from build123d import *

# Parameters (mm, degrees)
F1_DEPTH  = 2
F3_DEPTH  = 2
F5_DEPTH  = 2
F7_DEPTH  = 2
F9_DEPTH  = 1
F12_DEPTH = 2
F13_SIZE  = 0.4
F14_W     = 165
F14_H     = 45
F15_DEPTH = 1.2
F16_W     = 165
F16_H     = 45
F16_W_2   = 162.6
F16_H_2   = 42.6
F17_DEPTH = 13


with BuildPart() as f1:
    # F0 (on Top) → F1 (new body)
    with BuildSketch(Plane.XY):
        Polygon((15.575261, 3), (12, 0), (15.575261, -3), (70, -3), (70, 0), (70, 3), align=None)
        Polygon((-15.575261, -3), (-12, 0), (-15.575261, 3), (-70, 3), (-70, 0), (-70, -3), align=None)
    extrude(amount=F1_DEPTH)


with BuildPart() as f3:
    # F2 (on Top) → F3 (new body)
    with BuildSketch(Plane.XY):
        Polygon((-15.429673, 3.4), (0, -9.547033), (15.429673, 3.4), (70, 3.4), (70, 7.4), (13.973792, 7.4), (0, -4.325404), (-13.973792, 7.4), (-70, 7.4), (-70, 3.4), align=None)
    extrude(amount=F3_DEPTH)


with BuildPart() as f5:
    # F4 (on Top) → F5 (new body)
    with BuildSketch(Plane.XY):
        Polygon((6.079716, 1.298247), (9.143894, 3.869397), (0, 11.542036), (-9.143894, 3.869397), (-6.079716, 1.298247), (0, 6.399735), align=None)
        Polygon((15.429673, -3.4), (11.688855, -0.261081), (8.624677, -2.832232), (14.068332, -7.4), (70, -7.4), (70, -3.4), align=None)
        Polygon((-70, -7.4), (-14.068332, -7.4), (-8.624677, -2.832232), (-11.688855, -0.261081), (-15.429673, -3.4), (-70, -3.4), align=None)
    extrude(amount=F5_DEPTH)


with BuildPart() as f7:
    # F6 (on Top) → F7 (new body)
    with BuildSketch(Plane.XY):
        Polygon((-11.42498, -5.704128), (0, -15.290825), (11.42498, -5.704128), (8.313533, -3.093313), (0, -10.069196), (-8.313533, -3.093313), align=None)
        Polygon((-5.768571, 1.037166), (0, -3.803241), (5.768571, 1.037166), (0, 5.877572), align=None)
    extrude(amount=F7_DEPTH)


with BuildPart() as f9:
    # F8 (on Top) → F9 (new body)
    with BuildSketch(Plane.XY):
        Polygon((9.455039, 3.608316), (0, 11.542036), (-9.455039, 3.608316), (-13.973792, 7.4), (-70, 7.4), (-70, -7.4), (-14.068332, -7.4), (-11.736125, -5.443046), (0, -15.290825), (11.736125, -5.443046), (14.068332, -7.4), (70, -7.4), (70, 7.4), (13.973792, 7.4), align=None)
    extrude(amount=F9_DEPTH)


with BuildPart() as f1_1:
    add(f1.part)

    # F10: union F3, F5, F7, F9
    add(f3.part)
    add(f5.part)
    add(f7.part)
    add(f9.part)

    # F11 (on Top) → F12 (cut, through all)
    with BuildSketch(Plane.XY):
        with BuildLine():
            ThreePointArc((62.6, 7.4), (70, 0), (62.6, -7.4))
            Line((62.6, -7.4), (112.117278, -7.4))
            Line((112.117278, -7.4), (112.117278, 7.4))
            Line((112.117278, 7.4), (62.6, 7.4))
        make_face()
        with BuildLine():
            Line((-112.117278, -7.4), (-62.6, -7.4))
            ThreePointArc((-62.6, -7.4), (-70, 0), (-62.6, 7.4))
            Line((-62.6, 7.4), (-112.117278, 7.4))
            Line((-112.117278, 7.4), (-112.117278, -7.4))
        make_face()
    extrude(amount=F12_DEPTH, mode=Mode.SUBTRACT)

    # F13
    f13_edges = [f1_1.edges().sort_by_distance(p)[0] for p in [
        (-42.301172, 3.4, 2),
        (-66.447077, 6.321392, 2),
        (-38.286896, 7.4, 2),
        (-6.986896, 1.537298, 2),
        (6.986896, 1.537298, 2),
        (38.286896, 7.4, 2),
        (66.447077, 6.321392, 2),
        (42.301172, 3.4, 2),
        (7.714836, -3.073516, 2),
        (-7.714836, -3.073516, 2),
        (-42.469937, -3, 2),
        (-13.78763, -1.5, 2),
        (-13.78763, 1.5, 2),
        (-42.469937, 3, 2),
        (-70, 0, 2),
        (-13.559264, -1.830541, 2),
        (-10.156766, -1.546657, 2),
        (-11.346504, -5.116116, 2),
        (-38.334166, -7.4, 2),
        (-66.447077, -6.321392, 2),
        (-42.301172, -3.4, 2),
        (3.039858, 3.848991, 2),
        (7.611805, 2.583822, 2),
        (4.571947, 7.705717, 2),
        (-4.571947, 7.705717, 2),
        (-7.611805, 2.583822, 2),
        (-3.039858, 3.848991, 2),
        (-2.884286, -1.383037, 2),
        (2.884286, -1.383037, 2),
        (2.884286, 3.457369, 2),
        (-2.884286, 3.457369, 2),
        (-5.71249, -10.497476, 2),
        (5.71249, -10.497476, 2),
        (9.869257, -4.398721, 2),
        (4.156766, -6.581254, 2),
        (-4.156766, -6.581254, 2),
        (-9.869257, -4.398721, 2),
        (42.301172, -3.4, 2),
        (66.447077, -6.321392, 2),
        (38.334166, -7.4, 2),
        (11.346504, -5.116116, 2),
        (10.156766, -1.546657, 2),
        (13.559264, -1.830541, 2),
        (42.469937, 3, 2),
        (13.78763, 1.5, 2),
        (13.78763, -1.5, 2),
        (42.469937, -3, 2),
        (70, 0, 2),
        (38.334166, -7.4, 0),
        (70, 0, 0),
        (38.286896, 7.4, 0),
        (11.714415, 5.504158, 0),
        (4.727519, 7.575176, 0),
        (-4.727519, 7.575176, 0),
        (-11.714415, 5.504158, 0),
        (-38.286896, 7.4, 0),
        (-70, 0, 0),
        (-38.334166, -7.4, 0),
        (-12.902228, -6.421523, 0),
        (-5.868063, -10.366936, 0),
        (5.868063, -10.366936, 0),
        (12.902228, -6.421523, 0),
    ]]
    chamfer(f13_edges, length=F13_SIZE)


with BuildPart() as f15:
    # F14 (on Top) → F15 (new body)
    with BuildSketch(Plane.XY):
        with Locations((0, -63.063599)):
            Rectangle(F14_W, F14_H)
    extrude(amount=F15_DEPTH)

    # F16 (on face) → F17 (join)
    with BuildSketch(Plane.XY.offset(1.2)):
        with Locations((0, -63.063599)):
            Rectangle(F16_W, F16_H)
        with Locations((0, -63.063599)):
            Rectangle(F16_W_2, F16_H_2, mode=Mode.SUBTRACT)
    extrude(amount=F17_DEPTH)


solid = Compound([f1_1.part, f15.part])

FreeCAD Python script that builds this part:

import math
import FreeCAD as App
import Part
import Sketcher

V = App.Vector
Q = App.Units.Quantity


def edges_at(feature, points):
    """Names of the edges that pass closest to the given points."""
    edges = feature.Shape.Edges
    near = lambda p: min(range(len(edges)), key=lambda i: edges[i].distToShape(Part.Vertex(*p))[0])
    return sorted({f"Edge{near(p) + 1}" for p in points})


def add_polygon(sketch, points):
    """Adds a closed chain of lines whose ends are joined by coincident constraints."""
    first, n = sketch.GeometryCount, len(points)
    for a, b in zip(points, points[1:] + points[:1]):
        sketch.addGeometry(Part.LineSegment(App.Vector(*a, 0), App.Vector(*b, 0)), False)
    for i in range(n):
        sketch.addConstraint(Sketcher.Constraint("Coincident", first + i, 2, first + (i + 1) % n, 1))

doc = App.newDocument("Part")
body = doc.addObject("PartDesign::Body", "Body")
body.AllowCompound = True

# Sketch on XY plane
sketch1 = body.newObject("Sketcher::SketchObject", "Sketch")
sketch1.AttachmentSupport = (doc.getObject("XY_Plane"), [""])
sketch1.MapMode = "FlatFace"
add_polygon(sketch1, [(15.6, 3), (12, 0), (15.6, -3), (70, -3), (70, 3)])  # lines 0-4
add_polygon(sketch1, [(-15.6, -3), (-12, 0), (-15.6, 3), (-70, 3), (-70, -3)])  # lines 5-9
sketch1.addConstraint([
    Sketcher.Constraint("Horizontal", 2),
    Sketcher.Constraint("Vertical", 3),
    Sketcher.Constraint("Horizontal", 4),
    Sketcher.Constraint("Horizontal", 7),
    Sketcher.Constraint("Vertical", 8),
    Sketcher.Constraint("Horizontal", 9),
    Sketcher.Constraint("Symmetric", 0, 2, 5, 2, -1, 1),
    Sketcher.Constraint("Symmetric", 1, 2, 6, 2, -1, 1),
    Sketcher.Constraint("Symmetric", 3, 2, 8, 2, -1, 1),
    Sketcher.Constraint("Symmetric", 4, 2, 6, 2, -2),
    Sketcher.Constraint("PointOnObject", 0, 2, -1),
    Sketcher.Constraint("Parallel", 0, 5),
    Sketcher.Constraint("DistanceY", 3, 1, 3, 2, Q("6 mm")),
    Sketcher.Constraint("Angle", 0, Q("-140.000002 deg")),
    Sketcher.Constraint("DistanceX", -1, 1, 0, 2, Q("12 mm")),
    Sketcher.Constraint("DistanceX", -1, 1, 2, 2, Q("70 mm")),
])
pad1 = body.newObject("PartDesign::Pad", "Pad")
pad1.Profile = sketch1
pad1.Length = 2
body2 = doc.addObject("PartDesign::Body", "Body001")

# Sketch on XY plane
sketch2 = body2.newObject("Sketcher::SketchObject", "Sketch001")
sketch2.AttachmentSupport = (doc.getObject("XY_Plane001"), [""])
sketch2.MapMode = "FlatFace"
add_polygon(sketch2, [(-15.4, 3.4), (0, -9.5), (15.4, 3.4), (70, 3.4), (70, 7.4), (14, 7.4), (0, -4.3), (-14, 7.4), (-70, 7.4), (-70, 3.4)])  # lines 0-9
sketch2.addConstraint([
    Sketcher.Constraint("Horizontal", 2),
    Sketcher.Constraint("Vertical", 3),
    Sketcher.Constraint("Horizontal", 4),
    Sketcher.Constraint("Horizontal", 7),
    Sketcher.Constraint("Vertical", 8),
    Sketcher.Constraint("Horizontal", 9),
    Sketcher.Constraint("Symmetric", 4, 2, 6, 2, -2),
    Sketcher.Constraint("Symmetric", 2, 2, 8, 2, -2),
    Sketcher.Constraint("PointOnObject", 0, 2, -2),
    Sketcher.Constraint("PointOnObject", 5, 2, -2),
    Sketcher.Constraint("Parallel", 1, 5),
    Sketcher.Constraint("Parallel", 0, 6),
    Sketcher.Constraint("DistanceY", 3, 1, 3, 2, Q("4 mm")),
    Sketcher.Constraint("Angle", 0, Q("-40 deg")),
    Sketcher.Constraint("DistanceX", -1, 1, 2, 2, Q("70 mm")),
    Sketcher.Constraint("DistanceY", -1, 1, 1, 2, Q("3.4 mm")),
    Sketcher.Constraint("Distance", 5, Q("18.24149 mm")),
    Sketcher.Constraint("DistanceX", 2, 1, 2, 2, Q("54.570327 mm")),
])
pad2 = body2.newObject("PartDesign::Pad", "Pad001")
pad2.Profile = sketch2
pad2.Length = 2
body3 = doc.addObject("PartDesign::Body", "Body002")
body3.AllowCompound = True

# Sketch on XY plane
sketch3 = body3.newObject("Sketcher::SketchObject", "Sketch002")
sketch3.AttachmentSupport = (doc.getObject("XY_Plane002"), [""])
sketch3.MapMode = "FlatFace"
add_polygon(sketch3, [(6.1, 1.3), (9.1, 3.9), (0, 11.5), (-9.1, 3.9), (-6.1, 1.3), (0, 6.4)])  # lines 0-5
add_polygon(sketch3, [(15.4, -3.4), (11.7, -0.3), (8.6, -2.8), (14.1, -7.4), (70, -7.4), (70, -3.4)])  # lines 6-11
add_polygon(sketch3, [(-70, -7.4), (-14.1, -7.4), (-8.6, -2.8), (-11.7, -0.3), (-15.4, -3.4), (-70, -3.4)])  # lines 12-17
sketch3.addConstraint([
    Sketcher.Constraint("Horizontal", 9),
    Sketcher.Constraint("Vertical", 10),
    Sketcher.Constraint("Horizontal", 11),
    Sketcher.Constraint("Horizontal", 12),
    Sketcher.Constraint("Horizontal", 16),
    Sketcher.Constraint("Vertical", 17),
    Sketcher.Constraint("Symmetric", 0, 2, 2, 2, -2),
    Sketcher.Constraint("Symmetric", 3, 2, 5, 2, -2),
    Sketcher.Constraint("Symmetric", 8, 2, 12, 2, -2),
    Sketcher.Constraint("Symmetric", 7, 2, 13, 2, -2),
    Sketcher.Constraint("Symmetric", 6, 2, 14, 2, -2),
    Sketcher.Constraint("Symmetric", 11, 2, 15, 2, -2),
    Sketcher.Constraint("PointOnObject", 1, 2, -2),
    Sketcher.Constraint("PointOnObject", 4, 2, -2),
    Sketcher.Constraint("Parallel", 0, 2),
    Sketcher.Constraint("Parallel", 2, 4),
    Sketcher.Constraint("Parallel", 5, 6),
    Sketcher.Constraint("Parallel", 4, 7),
    Sketcher.Constraint("Parallel", 6, 8),
    Sketcher.Constraint("Equal", 9, 12),
    Sketcher.Constraint("Equal", 3, 7),
    Sketcher.Constraint("DistanceY", 10, 1, 10, 2, Q("4 mm")),
    Sketcher.Constraint("Angle", 0, Q("39.999993 deg")),
    Sketcher.Constraint("Distance", 0, Q("4 mm")),
    Sketcher.Constraint("DistanceX", -1, 1, 9, 2, Q("70 mm")),
    Sketcher.Constraint("DistanceY", 8, 2, -1, 1, Q("7.4 mm")),
    Sketcher.Constraint("DistanceX", 9, 1, 9, 2, Q("55.931668 mm")),
    Sketcher.Constraint("Distance", 6, Q("4.883291 mm")),
    Sketcher.Constraint("DistanceY", 0, 2, 1, 2, Q("7.672639 mm")),
    Sketcher.Constraint("DistanceY", 7, 2, 5, 2, Q("4.130479 mm")),
])
pad3 = body3.newObject("PartDesign::Pad", "Pad002")
pad3.Profile = sketch3
pad3.Length = 2
body4 = doc.addObject("PartDesign::Body", "Body003")
body4.AllowCompound = True

# Sketch on XY plane
sketch4 = body4.newObject("Sketcher::SketchObject", "Sketch003")
sketch4.AttachmentSupport = (doc.getObject("XY_Plane003"), [""])
sketch4.MapMode = "FlatFace"
add_polygon(sketch4, [(-11.4, -5.7), (0, -15.3), (11.4, -5.7), (8.3, -3.1), (0, -10.1), (-8.3, -3.1)])  # lines 0-5
add_polygon(sketch4, [(-5.8, 1), (0, -3.8), (5.8, 1), (0, 5.9)])  # lines 6-9
sketch4.addConstraint([
    Sketcher.Constraint("Symmetric", 2, 2, 4, 2, -2),
    Sketcher.Constraint("Symmetric", 1, 2, 5, 2, -2),
    Sketcher.Constraint("Symmetric", 7, 2, 9, 2, -2),
    Sketcher.Constraint("PointOnObject", 0, 2, -2),
    Sketcher.Constraint("PointOnObject", 3, 2, -2),
    Sketcher.Constraint("PointOnObject", 6, 2, -2),
    Sketcher.Constraint("PointOnObject", 8, 2, -2),
    Sketcher.Constraint("Parallel", 0, 2),
    Sketcher.Constraint("Parallel", 1, 3),
    Sketcher.Constraint("Parallel", 4, 6),
    Sketcher.Constraint("Parallel", 6, 8),
    Sketcher.Constraint("Angle", 0, Q("-40.000001 deg")),
    Sketcher.Constraint("DistanceX", -1, 1, 1, 2, Q("11.42498 mm")),
    Sketcher.Constraint("DistanceY", 6, 2, -1, 1, Q("3.803241 mm")),
    Sketcher.Constraint("DistanceX", -1, 1, 7, 2, Q("5.768571 mm")),
    Sketcher.Constraint("DistanceY", 0, 2, 3, 2, Q("5.221629 mm")),
    Sketcher.Constraint("DistanceY", 2, 2, 7, 2, Q("4.130479 mm")),
])
pad4 = body4.newObject("PartDesign::Pad", "Pad003")
pad4.Profile = sketch4
pad4.Length = 2
body5 = doc.addObject("PartDesign::Body", "Body004")

# Sketch on XY plane
sketch5 = body5.newObject("Sketcher::SketchObject", "Sketch004")
sketch5.AttachmentSupport = (doc.getObject("XY_Plane004"), [""])
sketch5.MapMode = "FlatFace"
add_polygon(sketch5, [(9.5, 3.6), (0, 11.5), (-9.5, 3.6), (-14, 7.4), (-70, 7.4), (-70, -7.4), (-14.1, -7.4), (-11.7, -5.4), (0, -15.3), (11.7, -5.4), (14.1, -7.4), (70, -7.4), (70, 7.4), (14, 7.4)])  # lines 0-13
sketch5.addConstraint([
    Sketcher.Constraint("Horizontal", 3),
    Sketcher.Constraint("Vertical", 4),
    Sketcher.Constraint("Horizontal", 5),
    Sketcher.Constraint("Horizontal", 10),
    Sketcher.Constraint("Vertical", 11),
    Sketcher.Constraint("Horizontal", 12),
    Sketcher.Constraint("Symmetric", 3, 2, 10, 2, -1, 1),
    Sketcher.Constraint("Symmetric", 6, 2, 8, 2, -2),
    Sketcher.Constraint("Symmetric", 5, 2, 9, 2, -2),
    Sketcher.Constraint("Symmetric", 2, 2, 12, 2, -2),
    Sketcher.Constraint("Symmetric", 1, 2, 13, 2, -2),
    Sketcher.Constraint("PointOnObject", 0, 2, -2),
    Sketcher.Constraint("PointOnObject", 7, 2, -2),
    Sketcher.Constraint("Parallel", 0, 2),
    Sketcher.Constraint("Parallel", 1, 6),
    Sketcher.Constraint("Parallel", 2, 7),
    Sketcher.Constraint("Angle", 0, Q("139.999999 deg")),
    Sketcher.Constraint("DistanceY", 4, 2, 4, 1, Q("14.8 mm")),
    Sketcher.Constraint("DistanceX", 3, 2, -1, 1, Q("70 mm")),
    Sketcher.Constraint("DistanceX", 5, 1, 5, 2, Q("55.931668 mm")),
    Sketcher.Constraint("Distance", 6, Q("3.04448 mm")),
    Sketcher.Constraint("DistanceX", 3, 2, 3, 1, Q("56.026208 mm")),
    Sketcher.Constraint("DistanceX", 1, 2, -1, 1, Q("9.455039 mm")),
])
pad5 = body5.newObject("PartDesign::Pad", "Pad004")
pad5.Profile = sketch5
pad5.Length = 1
body.AllowCompound = True
doc.recompute()

boolean = body.newObject("PartDesign::Boolean", "Boolean")
boolean.Type = "Fuse"
boolean.addObjects([body2])
doc.recompute()

boolean2 = body.newObject("PartDesign::Boolean", "Boolean001")
boolean2.Type = "Fuse"
boolean2.addObjects([body3])
doc.recompute()

boolean3 = body.newObject("PartDesign::Boolean", "Boolean002")
boolean3.Type = "Fuse"
boolean3.addObjects([body4])
doc.recompute()

boolean4 = body.newObject("PartDesign::Boolean", "Boolean003")
boolean4.Type = "Fuse"
boolean4.addObjects([body5])

# Sketch on XY plane
sketch6 = body.newObject("Sketcher::SketchObject", "Sketch005")
sketch6.AttachmentSupport = (doc.getObject("XY_Plane"), [""])
sketch6.MapMode = "FlatFace"
sketch6.addGeometry([
    Part.ArcOfCircle(Part.Circle(V(63, 0, 0), V(0, 0, 1), 7), math.radians(-90), math.radians(90)),  # 0
    Part.LineSegment(V(63, -7, 0), V(112, -7, 0)),  # 1
    Part.LineSegment(V(112, -7, 0), V(112, 7, 0)),  # 2
    Part.LineSegment(V(112, 7, 0), V(63, 7, 0)),  # 3
    Part.LineSegment(V(-112, -7, 0), V(-63, -7, 0)),  # 4
    Part.ArcOfCircle(Part.Circle(V(-63, 0, 0), V(0, 0, 1), 7), math.radians(90), math.radians(270)),  # 5
    Part.LineSegment(V(-63, 7, 0), V(-112, 7, 0)),  # 6
    Part.LineSegment(V(-112, 7, 0), V(-112, -7, 0)),  # 7
], False)
sketch6.addConstraint([
    Sketcher.Constraint("Tangent", 0, 1, 1, 1),
    Sketcher.Constraint("Coincident", 1, 2, 2, 1),
    Sketcher.Constraint("Coincident", 2, 2, 3, 1),
    Sketcher.Constraint("Tangent", 3, 2, 0, 2),
    Sketcher.Constraint("Tangent", 4, 2, 5, 2),
    Sketcher.Constraint("Tangent", 5, 1, 6, 1),
    Sketcher.Constraint("Coincident", 6, 2, 7, 1),
    Sketcher.Constraint("Coincident", 7, 2, 4, 1),
    Sketcher.Constraint("Horizontal", 1),
    Sketcher.Constraint("Vertical", 2),
    Sketcher.Constraint("Horizontal", 3),
    Sketcher.Constraint("Horizontal", 4),
    Sketcher.Constraint("Horizontal", 6),
    Sketcher.Constraint("Vertical", 7),
    Sketcher.Constraint("Equal", 0, 5),
    Sketcher.Constraint("Symmetric", 0, 3, 5, 3, -1, 1),
    Sketcher.Constraint("Symmetric", 2, 2, 6, 2, -2),
    Sketcher.Constraint("Radius", 0, Q("7.4 mm")),
    Sketcher.Constraint("DistanceX", -1, 1, 0, 3, Q("62.6 mm")),
    Sketcher.Constraint("DistanceX", 1, 1, 1, 2, Q("49.517278 mm")),
])
pocket1 = body.newObject("PartDesign::Pocket", "Pocket")
pocket1.Profile = sketch6
pocket1.Type = "ThroughAll"
pocket1.Reversed = True
doc.recompute()

chamfer = body.newObject("PartDesign::Chamfer", "Chamfer")
chamfer.Base = (pocket1, edges_at(pocket1, [
    (-42.301, 3.4, 2),
    (-66.447, 6.321, 2),
    (-38.287, 7.4, 2),
    (-6.987, 1.537, 2),
    (6.987, 1.537, 2),
    (38.287, 7.4, 2),
    (66.447, 6.321, 2),
    (42.301, 3.4, 2),
    (7.715, -3.074, 2),
    (-7.715, -3.074, 2),
    (-42.47, -3, 2),
    (-13.788, -1.5, 2),
    (-13.788, 1.5, 2),
    (-42.47, 3, 2),
    (-70, 0, 2),
    (-13.559, -1.831, 2),
    (-10.157, -1.547, 2),
    (-11.347, -5.116, 2),
    (-38.334, -7.4, 2),
    (-66.447, -6.321, 2),
    (-42.301, -3.4, 2),
    (3.04, 3.849, 2),
    (7.612, 2.584, 2),
    (4.572, 7.706, 2),
    (-4.572, 7.706, 2),
    (-7.612, 2.584, 2),
    (-3.04, 3.849, 2),
    (-2.884, -1.383, 2),
    (2.884, -1.383, 2),
    (2.884, 3.457, 2),
    (-2.884, 3.457, 2),
    (-5.712, -10.497, 2),
    (5.712, -10.497, 2),
    (9.869, -4.399, 2),
    (4.157, -6.581, 2),
    (-4.157, -6.581, 2),
    (-9.869, -4.399, 2),
    (42.301, -3.4, 2),
    (66.447, -6.321, 2),
    (38.334, -7.4, 2),
    (11.347, -5.116, 2),
    (10.157, -1.547, 2),
    (13.559, -1.831, 2),
    (42.47, 3, 2),
    (13.788, 1.5, 2),
    (13.788, -1.5, 2),
    (42.47, -3, 2),
    (70, 0, 2),
    (38.334, -7.4, 0),
    (70, 0, 0),
    (38.287, 7.4, 0),
    (11.714, 5.504, 0),
    (4.728, 7.575, 0),
    (-4.728, 7.575, 0),
    (-11.714, 5.504, 0),
    (-38.287, 7.4, 0),
    (-70, 0, 0),
    (-38.334, -7.4, 0),
    (-12.902, -6.422, 0),
    (-5.712, -10.497, 0),
    (5.712, -10.497, 0),
    (12.902, -6.422, 0),
]))
chamfer.Size = 0.4
body6 = doc.addObject("PartDesign::Body", "Body005")

# Sketch on XY plane
sketch7 = body6.newObject("Sketcher::SketchObject", "Sketch006")
sketch7.AttachmentSupport = (doc.getObject("XY_Plane005"), [""])
sketch7.MapMode = "FlatFace"
add_polygon(sketch7, [(-82, -41), (-82, -86), (82, -86), (82, -41)])  # lines 0-3
sketch7.addConstraint([
    Sketcher.Constraint("Vertical", 0),
    Sketcher.Constraint("Horizontal", 1),
    Sketcher.Constraint("Vertical", 2),
    Sketcher.Constraint("Horizontal", 3),
    Sketcher.Constraint("DistanceX", 1, 1, 1, 2, Q("165 mm")),
    Sketcher.Constraint("DistanceY", 0, 2, 0, 1, Q("45 mm")),
    Sketcher.Constraint("DistanceX", 0, 2, -1, 1, Q("82.5 mm")),
    Sketcher.Constraint("DistanceY", 0, 2, -1, 1, Q("85.563599 mm")),
])
pad6 = body6.newObject("PartDesign::Pad", "Pad005")
pad6.Profile = sketch7
pad6.Length = 1.2

# Sketch on XY plane
sketch8 = body6.newObject("Sketcher::SketchObject", "Sketch007")
sketch8.AttachmentSupport = (doc.getObject("XY_Plane005"), [""])
sketch8.MapMode = "FlatFace"
sketch8.AttachmentOffset = App.Placement(V(0, 0, 1.2), App.Rotation())
add_polygon(sketch8, [(-82, -41), (-82, -86), (82, -86), (82, -41)])  # lines 0-3
add_polygon(sketch8, [(81, -84), (-81, -84), (-81, -42), (81, -42)])  # lines 4-7
sketch8.addConstraint([
    Sketcher.Constraint("Vertical", 0),
    Sketcher.Constraint("Horizontal", 1),
    Sketcher.Constraint("Vertical", 2),
    Sketcher.Constraint("Horizontal", 3),
    Sketcher.Constraint("Horizontal", 4),
    Sketcher.Constraint("Vertical", 5),
    Sketcher.Constraint("Horizontal", 6),
    Sketcher.Constraint("Vertical", 7),
    Sketcher.Constraint("DistanceX", 1, 1, 1, 2, Q("165 mm")),
    Sketcher.Constraint("DistanceY", 0, 2, 0, 1, Q("45 mm")),
    Sketcher.Constraint("DistanceX", 4, 2, 4, 1, Q("162.6 mm")),
    Sketcher.Constraint("DistanceY", 5, 1, 5, 2, Q("42.6 mm")),
    Sketcher.Constraint("DistanceX", 0, 2, -1, 1, Q("82.5 mm")),
    Sketcher.Constraint("DistanceX", 4, 2, -1, 1, Q("81.3 mm")),
    Sketcher.Constraint("DistanceY", 0, 2, 4, 2, Q("1.2 mm")),
    Sketcher.Constraint("DistanceY", 0, 2, -1, 1, Q("85.563599 mm")),
])
pad7 = body6.newObject("PartDesign::Pad", "Pad006")
pad7.Profile = sketch8
pad7.Length = 13

doc.recompute()
